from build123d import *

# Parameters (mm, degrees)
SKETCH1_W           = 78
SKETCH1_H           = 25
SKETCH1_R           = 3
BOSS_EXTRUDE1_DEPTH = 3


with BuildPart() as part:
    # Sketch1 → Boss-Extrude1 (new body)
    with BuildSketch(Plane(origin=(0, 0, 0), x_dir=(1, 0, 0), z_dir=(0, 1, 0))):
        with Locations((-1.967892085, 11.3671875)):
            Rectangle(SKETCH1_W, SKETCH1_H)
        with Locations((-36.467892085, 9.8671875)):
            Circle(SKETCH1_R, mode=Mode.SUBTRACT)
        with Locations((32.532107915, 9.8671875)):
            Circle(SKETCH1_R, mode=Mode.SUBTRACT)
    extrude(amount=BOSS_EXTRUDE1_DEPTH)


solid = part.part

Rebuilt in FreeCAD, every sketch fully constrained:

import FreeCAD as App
import Part
import Sketcher

V = App.Vector
Q = App.Units.Quantity


def add_polygon(sketch, points):
    """Adds a closed chain of lines whose ends are joined by coincident constraints."""
    first, n = sketch.GeometryCount, len(points)
    for a, b in zip(points, points[1:] + points[:1]):
        sketch.addGeometry(Part.LineSegment(App.Vector(*a, 0), App.Vector(*b, 0)), False)
    for i in range(n):
        sketch.addConstraint(Sketcher.Constraint("Coincident", first + i, 2, first + (i + 1) % n, 1))

doc = App.newDocument("Part")
body = doc.addObject("PartDesign::Body", "Body")

# Sketch on XZ plane
sketch1 = body.newObject("Sketcher::SketchObject", "Sketch")
sketch1.AttachmentSupport = (doc.getObject("XZ_Plane"), [""])
sketch1.MapMode = "FlatFace"
add_polygon(sketch1, [(-40.967892, -23.867188), (-40.967892, 1.132812), (37.032108, 1.132812), (37.032108, -23.867188)])  # lines 0-3
sketch1.addGeometry(Part.Circle(V(-36.467892, -9.867188, 0), V(0, 0, 1), 3), False)  # 4
sketch1.addGeometry(Part.Circle(V(32.532108, -9.867188, 0), V(0, 0, 1), 3), False)  # 5
sketch1.addConstraint([
    Sketcher.Constraint("Vertical", 0),
    Sketcher.Constraint("Horizontal", 1),
    Sketcher.Constraint("Vertical", 2),
    Sketcher.Constraint("Horizontal", 3),
    Sketcher.Constraint("Equal", 4, 5),
    Sketcher.Constraint("Horizontal", 4, 3, 5, 3),
    Sketcher.Constraint("Diameter", 4, Q("6 mm")),
    Sketcher.Constraint("DistanceX", 1, 1, 1, 2, Q("78 mm")),
    Sketcher.Constraint("DistanceY", 0, 1, 0, 2, Q("25 mm")),
    Sketcher.Constraint("DistanceX", 4, 3, 5, 3, Q("69 mm")),
    Sketcher.Constraint("DistanceY", 4, 3, 0, 2, Q("11 mm")),
    Sketcher.Constraint("DistanceX", 0, 2, 4, 3, Q("4.5 mm")),
    Sketcher.Constraint("DistanceX", 4, 3, -1, 1, Q("36.467892 mm")),
    Sketcher.Constraint("DistanceY", 4, 3, -1, 1, Q("9.867188 mm")),
])
pad1 = body.newObject("PartDesign::Pad", "Pad")
pad1.Profile = sketch1
pad1.Length = 3
pad1.Reversed = True

doc.recompute()
